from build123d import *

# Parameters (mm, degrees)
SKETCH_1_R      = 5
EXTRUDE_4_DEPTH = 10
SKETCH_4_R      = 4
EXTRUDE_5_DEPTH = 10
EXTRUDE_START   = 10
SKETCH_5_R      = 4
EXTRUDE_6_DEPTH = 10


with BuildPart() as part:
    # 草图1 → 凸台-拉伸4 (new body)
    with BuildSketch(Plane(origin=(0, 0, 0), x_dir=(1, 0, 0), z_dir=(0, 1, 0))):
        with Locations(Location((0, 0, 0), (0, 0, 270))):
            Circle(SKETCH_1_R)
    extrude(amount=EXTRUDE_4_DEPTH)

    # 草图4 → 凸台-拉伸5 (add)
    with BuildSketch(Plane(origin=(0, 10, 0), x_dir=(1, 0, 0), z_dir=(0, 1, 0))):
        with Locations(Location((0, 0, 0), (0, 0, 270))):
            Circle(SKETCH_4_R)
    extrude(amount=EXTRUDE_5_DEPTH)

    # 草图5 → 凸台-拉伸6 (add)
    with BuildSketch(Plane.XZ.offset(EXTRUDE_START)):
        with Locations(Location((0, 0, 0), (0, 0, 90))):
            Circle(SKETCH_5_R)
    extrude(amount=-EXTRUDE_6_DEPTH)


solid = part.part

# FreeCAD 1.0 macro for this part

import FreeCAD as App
import Part
import Sketcher

V = App.Vector

doc = App.newDocument("Part")
body = doc.addObject("PartDesign::Body", "Body")

# Sketch on XZ plane
sketch1 = doc.addObject("Sketcher::SketchObject", "Sketch")
body.addObject(sketch1)
sketch1.AttachmentSupport = (doc.XZ_Plane, [""])
sketch1.MapMode = "FlatFace"
sketch1.addGeometry(Part.Circle(V(0, 0, 0), V(0, 0, 1), 5), False)
sketch1.addConstraint([
    Sketcher.Constraint("Coincident", 0, 3, -1, 1),
    Sketcher.Constraint("Diameter", 0, 10.0),
])
pad1 = doc.addObject("PartDesign::Pad", "Pad")
body.addObject(pad1)
pad1.Profile = sketch1
pad1.Length = 10
pad1.Reversed = True

# Sketch on XZ plane
sketch2 = doc.addObject("Sketcher::SketchObject", "Sketch001")
body.addObject(sketch2)
sketch2.AttachmentSupport = (doc.XZ_Plane, [""])
sketch2.MapMode = "FlatFace"
sketch2.AttachmentOffset = App.Placement(V(0, 0, -10), App.Rotation())
sketch2.addGeometry(Part.Circle(V(0, 0, 0), V(0, 0, 1), 4), False)
sketch2.addConstraint([
    Sketcher.Constraint("Coincident", 0, 3, -1, 1),
    Sketcher.Constraint("Diameter", 0, 8.0),
])
pad2 = doc.addObject("PartDesign::Pad", "Pad001")
body.addObject(pad2)
pad2.Profile = sketch2
pad2.Length = 10
pad2.Reversed = True

# Sketch on XZ plane
sketch3 = doc.addObject("Sketcher::SketchObject", "Sketch002")
body.addObject(sketch3)
sketch3.AttachmentSupport = (doc.XZ_Plane, [""])
sketch3.MapMode = "FlatFace"
sketch3.AttachmentOffset = App.Placement(V(0, 0, 10), App.Rotation())
sketch3.addGeometry(Part.Circle(V(0, 0, 0), V(0, 0, 1), 4), False)
sketch3.addConstraint([
    Sketcher.Constraint("Coincident", 0, 3, -1, 1),
    Sketcher.Constraint("Diameter", 0, 8.0),
])
pad3 = doc.addObject("PartDesign::Pad", "Pad002")
body.addObject(pad3)
pad3.Profile = sketch3
pad3.Length = 10
pad3.Reversed = True

doc.recompute()
